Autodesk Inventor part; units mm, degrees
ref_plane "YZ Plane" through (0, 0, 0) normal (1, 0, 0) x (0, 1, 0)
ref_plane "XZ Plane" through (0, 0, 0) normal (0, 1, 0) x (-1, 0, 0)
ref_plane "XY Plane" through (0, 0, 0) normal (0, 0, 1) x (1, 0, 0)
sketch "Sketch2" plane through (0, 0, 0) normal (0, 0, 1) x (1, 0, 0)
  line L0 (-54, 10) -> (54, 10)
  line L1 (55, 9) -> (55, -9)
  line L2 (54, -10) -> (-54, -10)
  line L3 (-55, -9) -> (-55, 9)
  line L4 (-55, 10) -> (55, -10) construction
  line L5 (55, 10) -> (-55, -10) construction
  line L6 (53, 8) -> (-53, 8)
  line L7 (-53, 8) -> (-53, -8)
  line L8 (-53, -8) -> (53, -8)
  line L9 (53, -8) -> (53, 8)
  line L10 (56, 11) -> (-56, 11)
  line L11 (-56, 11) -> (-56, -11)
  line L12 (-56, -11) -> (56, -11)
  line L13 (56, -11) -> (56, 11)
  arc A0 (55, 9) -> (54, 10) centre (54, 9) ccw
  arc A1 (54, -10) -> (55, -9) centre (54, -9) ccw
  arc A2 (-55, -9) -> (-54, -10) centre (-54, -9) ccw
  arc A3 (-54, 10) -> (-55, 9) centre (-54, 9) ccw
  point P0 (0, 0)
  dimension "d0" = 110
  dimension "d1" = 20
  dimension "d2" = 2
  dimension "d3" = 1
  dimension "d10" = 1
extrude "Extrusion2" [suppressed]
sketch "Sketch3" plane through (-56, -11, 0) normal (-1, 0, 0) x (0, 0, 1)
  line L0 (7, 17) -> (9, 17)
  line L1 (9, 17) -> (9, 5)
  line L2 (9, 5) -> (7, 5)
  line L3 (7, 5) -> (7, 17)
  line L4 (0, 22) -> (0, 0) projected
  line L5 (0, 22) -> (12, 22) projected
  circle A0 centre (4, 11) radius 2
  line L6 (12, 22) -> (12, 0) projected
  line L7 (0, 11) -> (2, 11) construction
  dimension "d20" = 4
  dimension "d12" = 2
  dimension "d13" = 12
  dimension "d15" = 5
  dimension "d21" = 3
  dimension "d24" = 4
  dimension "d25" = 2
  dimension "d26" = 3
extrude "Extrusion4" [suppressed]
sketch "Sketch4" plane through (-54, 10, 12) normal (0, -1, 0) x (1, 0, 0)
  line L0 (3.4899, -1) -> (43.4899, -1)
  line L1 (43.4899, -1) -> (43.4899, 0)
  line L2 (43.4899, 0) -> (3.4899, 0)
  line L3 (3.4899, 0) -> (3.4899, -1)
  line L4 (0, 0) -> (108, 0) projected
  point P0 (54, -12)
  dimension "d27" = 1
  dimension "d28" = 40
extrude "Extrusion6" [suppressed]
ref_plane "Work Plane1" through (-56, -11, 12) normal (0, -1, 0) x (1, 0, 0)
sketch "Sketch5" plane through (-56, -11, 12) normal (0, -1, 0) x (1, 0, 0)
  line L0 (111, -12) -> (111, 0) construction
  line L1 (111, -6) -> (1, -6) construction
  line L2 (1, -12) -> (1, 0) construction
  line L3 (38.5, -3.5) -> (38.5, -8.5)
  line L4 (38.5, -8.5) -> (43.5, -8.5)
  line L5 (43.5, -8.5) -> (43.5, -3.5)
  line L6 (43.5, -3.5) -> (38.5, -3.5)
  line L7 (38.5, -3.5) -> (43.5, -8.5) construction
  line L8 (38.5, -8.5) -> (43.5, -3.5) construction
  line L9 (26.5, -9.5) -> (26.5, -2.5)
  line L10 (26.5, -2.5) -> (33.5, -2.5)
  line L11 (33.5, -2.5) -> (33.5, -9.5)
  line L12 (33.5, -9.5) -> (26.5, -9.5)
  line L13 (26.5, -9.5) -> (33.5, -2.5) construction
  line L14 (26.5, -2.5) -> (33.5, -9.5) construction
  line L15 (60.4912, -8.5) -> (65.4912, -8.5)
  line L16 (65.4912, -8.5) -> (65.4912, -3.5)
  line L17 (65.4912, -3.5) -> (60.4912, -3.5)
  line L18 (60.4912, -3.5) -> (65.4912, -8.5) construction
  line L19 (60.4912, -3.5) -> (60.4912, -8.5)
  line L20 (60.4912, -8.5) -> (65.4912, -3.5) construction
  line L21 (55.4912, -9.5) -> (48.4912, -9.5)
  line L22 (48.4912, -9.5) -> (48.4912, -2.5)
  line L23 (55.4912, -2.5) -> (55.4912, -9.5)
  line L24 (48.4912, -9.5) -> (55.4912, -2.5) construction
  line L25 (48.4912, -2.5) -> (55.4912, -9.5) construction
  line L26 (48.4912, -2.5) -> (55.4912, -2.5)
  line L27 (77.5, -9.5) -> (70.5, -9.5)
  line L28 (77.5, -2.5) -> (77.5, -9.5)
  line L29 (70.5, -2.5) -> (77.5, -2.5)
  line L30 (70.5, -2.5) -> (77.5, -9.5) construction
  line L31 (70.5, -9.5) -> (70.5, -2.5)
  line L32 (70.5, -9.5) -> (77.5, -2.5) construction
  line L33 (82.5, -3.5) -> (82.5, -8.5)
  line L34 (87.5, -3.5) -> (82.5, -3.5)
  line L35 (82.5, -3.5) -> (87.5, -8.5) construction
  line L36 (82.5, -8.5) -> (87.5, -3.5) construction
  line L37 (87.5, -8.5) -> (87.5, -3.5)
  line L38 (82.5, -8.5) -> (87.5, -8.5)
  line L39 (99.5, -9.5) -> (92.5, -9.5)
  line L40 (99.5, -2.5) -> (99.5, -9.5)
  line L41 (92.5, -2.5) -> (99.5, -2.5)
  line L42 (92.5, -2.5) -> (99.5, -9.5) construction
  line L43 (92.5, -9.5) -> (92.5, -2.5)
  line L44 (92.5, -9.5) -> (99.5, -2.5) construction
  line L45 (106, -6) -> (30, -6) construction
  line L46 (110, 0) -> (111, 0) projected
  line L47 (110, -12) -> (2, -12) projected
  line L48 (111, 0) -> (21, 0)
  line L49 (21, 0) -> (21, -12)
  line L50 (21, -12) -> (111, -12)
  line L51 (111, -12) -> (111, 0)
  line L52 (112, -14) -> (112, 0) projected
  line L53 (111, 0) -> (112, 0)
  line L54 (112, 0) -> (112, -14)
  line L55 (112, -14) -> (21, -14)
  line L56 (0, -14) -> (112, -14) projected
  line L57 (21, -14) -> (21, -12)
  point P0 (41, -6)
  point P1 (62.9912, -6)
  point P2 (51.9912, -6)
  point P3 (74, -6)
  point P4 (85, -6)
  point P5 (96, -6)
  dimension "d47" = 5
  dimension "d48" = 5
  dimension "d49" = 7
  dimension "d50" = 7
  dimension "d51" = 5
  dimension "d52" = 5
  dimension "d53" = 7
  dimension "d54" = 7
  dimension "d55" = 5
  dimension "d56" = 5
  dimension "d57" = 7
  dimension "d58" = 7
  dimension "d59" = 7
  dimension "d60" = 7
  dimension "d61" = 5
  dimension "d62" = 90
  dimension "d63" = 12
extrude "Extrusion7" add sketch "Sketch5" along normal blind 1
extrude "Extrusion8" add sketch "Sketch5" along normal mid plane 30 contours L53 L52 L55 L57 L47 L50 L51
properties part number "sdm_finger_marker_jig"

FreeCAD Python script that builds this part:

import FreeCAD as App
import Part
import Sketcher
from FreeCAD import Vector
Q = App.Units.Quantity

doc = App.newDocument("Part")
params = doc.addObject("Spreadsheet::Sheet", "Params")
for row, (alias, value) in enumerate([
    ("sketch1_width", "7 mm"),
    ("sketch1_width2", "5 mm"),
    ("sketch1_width3", "91 mm"),
    ("sketch1_height", "14 mm"),
    ("pad1_length", "1 mm"),
    ("sketch2_width", "90 mm"),
    ("sketch2_height", "12 mm"),
    ("sketch2_width2", "1 mm"),
    ("sketch2_height2", "2 mm"),
    ("pad2_length", "30 mm"),
], start=1):
    params.set(f"A{row}", alias)
    params.set(f"B{row}", "=" + value)
    params.setAlias(f"B{row}", alias)

body = doc.addObject("PartDesign::Body", "Body")

# Sketch on XZ plane
sketch1 = doc.addObject("Sketcher::SketchObject", "Sketch")
body.addObject(sketch1)
sketch1.AttachmentSupport = (doc.XZ_Plane, [""])
sketch1.MapMode = "FlatFace"
sketch1.AttachmentOffset = App.Placement(Vector(0, 0, 11), App.Rotation())
sketch1.addGeometry([
    Part.LineSegment(Vector(-35, 12, 0), Vector(-35, -2, 0)),  # 0
    Part.LineSegment(Vector(-35, -2, 0), Vector(56, -2, 0)),  # 1
    Part.LineSegment(Vector(56, -2, 0), Vector(56, 12, 0)),  # 2
    Part.LineSegment(Vector(56, 12, 0), Vector(-35, 12, 0)),  # 3
    Part.LineSegment(Vector(-22.5, 2.5, 0), Vector(-29.5, 2.5, 0)),  # 4
    Part.LineSegment(Vector(-29.5, 2.5, 0), Vector(-29.5, 9.5, 0)),  # 5
    Part.LineSegment(Vector(-29.5, 9.5, 0), Vector(-22.5, 9.5, 0)),  # 6
    Part.LineSegment(Vector(-22.5, 9.5, 0), Vector(-22.5, 2.5, 0)),  # 7
    Part.LineSegment(Vector(-17.5, 3.5, 0), Vector(-17.5, 8.5, 0)),  # 8
    Part.LineSegment(Vector(-17.5, 8.5, 0), Vector(-12.5, 8.5, 0)),  # 9
    Part.LineSegment(Vector(-12.5, 8.5, 0), Vector(-12.5, 3.5, 0)),  # 10
    Part.LineSegment(Vector(-12.5, 3.5, 0), Vector(-17.5, 3.5, 0)),  # 11
    Part.LineSegment(Vector(-0.5088, 9.5, 0), Vector(-0.5088, 2.5, 0)),  # 12
    Part.LineSegment(Vector(-0.5088, 2.5, 0), Vector(-7.5088, 2.5, 0)),  # 13
    Part.LineSegment(Vector(-7.5088, 2.5, 0), Vector(-7.5088, 9.5, 0)),  # 14
    Part.LineSegment(Vector(-7.5088, 9.5, 0), Vector(-0.5088, 9.5, 0)),  # 15
    Part.LineSegment(Vector(9.4912, 3.5, 0), Vector(4.4912, 3.5, 0)),  # 16
    Part.LineSegment(Vector(4.4912, 3.5, 0), Vector(4.4912, 8.5, 0)),  # 17
    Part.LineSegment(Vector(4.4912, 8.5, 0), Vector(9.4912, 8.5, 0)),  # 18
    Part.LineSegment(Vector(9.4912, 8.5, 0), Vector(9.4912, 3.5, 0)),  # 19
    Part.LineSegment(Vector(21.5, 9.5, 0), Vector(21.5, 2.5, 0)),  # 20
    Part.LineSegment(Vector(21.5, 2.5, 0), Vector(14.5, 2.5, 0)),  # 21
    Part.LineSegment(Vector(14.5, 2.5, 0), Vector(14.5, 9.5, 0)),  # 22
    Part.LineSegment(Vector(14.5, 9.5, 0), Vector(21.5, 9.5, 0)),  # 23
    Part.LineSegment(Vector(26.5, 3.5, 0), Vector(26.5, 8.5, 0)),  # 24
    Part.LineSegment(Vector(26.5, 8.5, 0), Vector(31.5, 8.5, 0)),  # 25
    Part.LineSegment(Vector(31.5, 8.5, 0), Vector(31.5, 3.5, 0)),  # 26
    Part.LineSegment(Vector(31.5, 3.5, 0), Vector(26.5, 3.5, 0)),  # 27
    Part.LineSegment(Vector(43.5, 9.5, 0), Vector(43.5, 2.5, 0)),  # 28
    Part.LineSegment(Vector(43.5, 2.5, 0), Vector(36.5, 2.5, 0)),  # 29
    Part.LineSegment(Vector(36.5, 2.5, 0), Vector(36.5, 9.5, 0)),  # 30
    Part.LineSegment(Vector(36.5, 9.5, 0), Vector(43.5, 9.5, 0)),  # 31
], False)
sketch1.addConstraint([
    Sketcher.Constraint("Coincident", 0, 2, 1, 1),
    Sketcher.Constraint("Coincident", 1, 2, 2, 1),
    Sketcher.Constraint("Coincident", 2, 2, 3, 1),
    Sketcher.Constraint("Coincident", 3, 2, 0, 1),
    Sketcher.Constraint("Coincident", 4, 2, 5, 1),
    Sketcher.Constraint("Coincident", 5, 2, 6, 1),
    Sketcher.Constraint("Coincident", 6, 2, 7, 1),
    Sketcher.Constraint("Coincident", 7, 2, 4, 1),
    Sketcher.Constraint("Coincident", 8, 2, 9, 1),
    Sketcher.Constraint("Coincident", 9, 2, 10, 1),
    Sketcher.Constraint("Coincident", 10, 2, 11, 1),
    Sketcher.Constraint("Coincident", 11, 2, 8, 1),
    Sketcher.Constraint("Coincident", 12, 2, 13, 1),
    Sketcher.Constraint("Coincident", 13, 2, 14, 1),
    Sketcher.Constraint("Coincident", 14, 2, 15, 1),
    Sketcher.Constraint("Coincident", 15, 2, 12, 1),
    Sketcher.Constraint("Coincident", 16, 2, 17, 1),
    Sketcher.Constraint("Coincident", 17, 2, 18, 1),
    Sketcher.Constraint("Coincident", 18, 2, 19, 1),
    Sketcher.Constraint("Coincident", 19, 2, 16, 1),
    Sketcher.Constraint("Coincident", 20, 2, 21, 1),
    Sketcher.Constraint("Coincident", 21, 2, 22, 1),
    Sketcher.Constraint("Coincident", 22, 2, 23, 1),
    Sketcher.Constraint("Coincident", 23, 2, 20, 1),
    Sketcher.Constraint("Coincident", 24, 2, 25, 1),
    Sketcher.Constraint("Coincident", 25, 2, 26, 1),
    Sketcher.Constraint("Coincident", 26, 2, 27, 1),
    Sketcher.Constraint("Coincident", 27, 2, 24, 1),
    Sketcher.Constraint("Coincident", 28, 2, 29, 1),
    Sketcher.Constraint("Coincident", 29, 2, 30, 1),
    Sketcher.Constraint("Coincident", 30, 2, 31, 1),
    Sketcher.Constraint("Coincident", 31, 2, 28, 1),
    Sketcher.Constraint("Vertical", 0),
    Sketcher.Constraint("Horizontal", 1),
    Sketcher.Constraint("Vertical", 2),
    Sketcher.Constraint("Horizontal", 3),
    Sketcher.Constraint("Horizontal", 4),
    Sketcher.Constraint("Vertical", 5),
    Sketcher.Constraint("Horizontal", 6),
    Sketcher.Constraint("Vertical", 7),
    Sketcher.Constraint("Vertical", 8),
    Sketcher.Constraint("Horizontal", 9),
    Sketcher.Constraint("Vertical", 10),
    Sketcher.Constraint("Horizontal", 11),
    Sketcher.Constraint("Vertical", 12),
    Sketcher.Constraint("Horizontal", 13),
    Sketcher.Constraint("Vertical", 14),
    Sketcher.Constraint("Horizontal", 15),
    Sketcher.Constraint("Horizontal", 16),
    Sketcher.Constraint("Vertical", 17),
    Sketcher.Constraint("Horizontal", 18),
    Sketcher.Constraint("Vertical", 19),
    Sketcher.Constraint("Vertical", 20),
    Sketcher.Constraint("Horizontal", 21),
    Sketcher.Constraint("Vertical", 22),
    Sketcher.Constraint("Horizontal", 23),
    Sketcher.Constraint("Vertical", 24),
    Sketcher.Constraint("Horizontal", 25),
    Sketcher.Constraint("Vertical", 26),
    Sketcher.Constraint("Horizontal", 27),
    Sketcher.Constraint("Vertical", 28),
    Sketcher.Constraint("Horizontal", 29),
    Sketcher.Constraint("Vertical", 30),
    Sketcher.Constraint("Horizontal", 31),
    Sketcher.Constraint("Horizontal", 7, 2, 12, 2),
    Sketcher.Constraint("Horizontal", 6, 2, 14, 2),
    Sketcher.Constraint("Horizontal", 11, 2, 16, 2),
    Sketcher.Constraint("Horizontal", 9, 2, 17, 2),
    Sketcher.Constraint("Horizontal", 13, 2, 20, 2),
    Sketcher.Constraint("Horizontal", 15, 2, 22, 2),
    Sketcher.Constraint("Horizontal", 18, 2, 24, 2),
    Sketcher.Constraint("Horizontal", 19, 2, 26, 2),
    Sketcher.Constraint("Horizontal", 21, 2, 28, 2),
    Sketcher.Constraint("Horizontal", 23, 2, 30, 2),
    Sketcher.Constraint("Equal", 6, 13),
    Sketcher.Constraint("Equal", 11, 16),
    Sketcher.Constraint("Equal", 15, 21),
    Sketcher.Constraint("Equal", 18, 25),
    Sketcher.Constraint("Equal", 23, 29),
    Sketcher.Constraint("Equal", 31, 5),
    Sketcher.Constraint("Equal", 27, 8),
    Sketcher.Constraint("DistanceX", 4, 2, 4, 1, Q("7 mm")),
    Sketcher.Constraint("DistanceX", 9, 1, 9, 2, Q("5 mm")),
    Sketcher.Constraint("DistanceY", -1, 1, 2, 2, Q("12 mm")),
    Sketcher.Constraint("DistanceX", 6, 2, 8, 2, Q("5 mm")),
    Sketcher.Constraint("DistanceX", 12, 2, 16, 2, Q("5 mm")),
    Sketcher.Constraint("DistanceX", 23, 2, 24, 2, Q("5 mm")),
    Sketcher.Constraint("DistanceX", 26, 2, 28, 2, Q("12 mm")),
    Sketcher.Constraint("DistanceX", 1, 1, 1, 2, Q("91 mm")),
    Sketcher.Constraint("DistanceY", 0, 2, 0, 1, Q("14 mm")),
    Sketcher.Constraint("DistanceX", 0, 2, -1, 1, Q("35 mm")),
    Sketcher.Constraint("DistanceY", 8, 2, 6, 2, Q("1 mm")),
    Sketcher.Constraint("DistanceX", 4, 2, -1, 1, Q("29.5 mm")),
    Sketcher.Constraint("DistanceY", -1, 1, 4, 2, Q("2.5 mm")),
    Sketcher.Constraint("DistanceX", -1, 1, 20, 2, Q("21.5 mm")),
    Sketcher.Constraint("DistanceX", 12, 2, -1, 1, Q("0.5088 mm")),
])
sketch1.setExpression("Constraints[81]", "Params.sketch1_width")
sketch1.setExpression("Constraints[82]", "Params.sketch1_width2")
sketch1.setExpression("Constraints[88]", "Params.sketch1_width3")
sketch1.setExpression("Constraints[89]", "Params.sketch1_height")
pad1 = doc.addObject("PartDesign::Pad", "Pad")
body.addObject(pad1)
pad1.Profile = sketch1
pad1.setExpression("Length", "Params.pad1_length")

# Sketch on XZ plane
sketch2 = doc.addObject("Sketcher::SketchObject", "Sketch001")
body.addObject(sketch2)
sketch2.AttachmentSupport = (doc.XZ_Plane, [""])
sketch2.MapMode = "FlatFace"
sketch2.AttachmentOffset = App.Placement(Vector(0, 0, 11), App.Rotation())
sketch2.addGeometry([
    Part.LineSegment(Vector(56, 12, 0), Vector(55, 12, 0)),  # 0
    Part.LineSegment(Vector(55, 12, 0), Vector(55, 0, 0)),  # 1
    Part.LineSegment(Vector(55, 0, 0), Vector(-35, 0, 0)),  # 2
    Part.LineSegment(Vector(-35, 0, 0), Vector(-35, -2, 0)),  # 3
    Part.LineSegment(Vector(-35, -2, 0), Vector(56, -2, 0)),  # 4
    Part.LineSegment(Vector(56, -2, 0), Vector(56, 12, 0)),  # 5
], False)
sketch2.addConstraint([
    Sketcher.Constraint("Coincident", 0, 2, 1, 1),
    Sketcher.Constraint("Coincident", 1, 2, 2, 1),
    Sketcher.Constraint("Coincident", 2, 2, 3, 1),
    Sketcher.Constraint("Coincident", 3, 2, 4, 1),
    Sketcher.Constraint("Coincident", 4, 2, 5, 1),
    Sketcher.Constraint("Coincident", 5, 2, 0, 1),
    Sketcher.Constraint("Horizontal", 0),
    Sketcher.Constraint("Vertical", 1),
    Sketcher.Constraint("Horizontal", 2),
    Sketcher.Constraint("Vertical", 3),
    Sketcher.Constraint("Horizontal", 4),
    Sketcher.Constraint("Vertical", 5),
    Sketcher.Constraint("PointOnObject", 1, 2, -1),
    Sketcher.Constraint("DistanceX", 2, 2, 2, 1, Q("90 mm")),
    Sketcher.Constraint("DistanceY", 1, 2, 1, 1, Q("12 mm")),
    Sketcher.Constraint("DistanceX", 0, 2, 0, 1, Q("1 mm")),
    Sketcher.Constraint("DistanceY", 3, 2, 3, 1, Q("2 mm")),
    Sketcher.Constraint("DistanceX", -1, 1, 0, 2, Q("55 mm")),
])
sketch2.setExpression("Constraints[13]", "Params.sketch2_width")
sketch2.setExpression("Constraints[14]", "Params.sketch2_height")
sketch2.setExpression("Constraints[15]", "Params.sketch2_width2")
sketch2.setExpression("Constraints[16]", "Params.sketch2_height2")
pad2 = doc.addObject("PartDesign::Pad", "Pad001")
body.addObject(pad2)
pad2.Profile = sketch2
pad2.setExpression("Length", "Params.pad2_length")
pad2.Midplane = True

doc.recompute()
